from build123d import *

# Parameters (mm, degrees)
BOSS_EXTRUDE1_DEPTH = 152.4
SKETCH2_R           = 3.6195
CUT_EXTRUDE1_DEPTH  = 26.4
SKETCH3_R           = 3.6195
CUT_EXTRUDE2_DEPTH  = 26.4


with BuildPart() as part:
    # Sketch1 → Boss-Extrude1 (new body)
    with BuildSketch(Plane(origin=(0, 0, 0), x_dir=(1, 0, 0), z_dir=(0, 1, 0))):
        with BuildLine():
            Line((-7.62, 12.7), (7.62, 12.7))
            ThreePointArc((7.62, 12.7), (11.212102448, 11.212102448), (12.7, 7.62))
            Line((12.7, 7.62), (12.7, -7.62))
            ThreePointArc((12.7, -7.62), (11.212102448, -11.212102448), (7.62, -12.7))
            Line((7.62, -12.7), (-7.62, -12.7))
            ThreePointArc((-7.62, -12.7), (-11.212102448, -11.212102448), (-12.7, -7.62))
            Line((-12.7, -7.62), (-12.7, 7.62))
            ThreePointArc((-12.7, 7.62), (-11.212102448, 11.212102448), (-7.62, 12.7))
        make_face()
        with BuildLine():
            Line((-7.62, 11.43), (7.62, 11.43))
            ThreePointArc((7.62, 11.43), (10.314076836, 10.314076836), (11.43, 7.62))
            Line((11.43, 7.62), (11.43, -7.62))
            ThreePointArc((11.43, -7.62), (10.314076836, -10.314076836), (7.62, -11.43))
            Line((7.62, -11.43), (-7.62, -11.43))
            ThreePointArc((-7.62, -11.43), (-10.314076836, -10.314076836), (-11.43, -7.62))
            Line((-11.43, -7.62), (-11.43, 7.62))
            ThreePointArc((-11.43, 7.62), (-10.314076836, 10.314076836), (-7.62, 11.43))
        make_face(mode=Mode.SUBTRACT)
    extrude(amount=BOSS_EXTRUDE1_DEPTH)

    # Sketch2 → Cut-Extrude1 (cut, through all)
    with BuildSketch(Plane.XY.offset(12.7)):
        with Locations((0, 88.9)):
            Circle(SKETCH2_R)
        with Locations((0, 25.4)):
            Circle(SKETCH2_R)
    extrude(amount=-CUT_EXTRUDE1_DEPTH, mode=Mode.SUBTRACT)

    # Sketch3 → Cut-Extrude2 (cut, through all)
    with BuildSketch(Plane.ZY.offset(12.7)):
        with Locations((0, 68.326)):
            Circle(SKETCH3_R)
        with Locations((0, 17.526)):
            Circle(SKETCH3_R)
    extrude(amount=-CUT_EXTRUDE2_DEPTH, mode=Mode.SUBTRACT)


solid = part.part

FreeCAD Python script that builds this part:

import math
import FreeCAD as App
import Part
import Sketcher
Q = App.Units.Quantity

doc = App.newDocument("Part")
body = doc.addObject("PartDesign::Body", "Body")

sketch1 = doc.addObject("Sketcher::SketchObject", "Sketch")
body.addObject(sketch1)
sketch1.AttachmentSupport = (doc.XZ_Plane, [""])
sketch1.MapMode = "FlatFace"
sketch1.addGeometry([
    Part.LineSegment(App.Vector(7.6, -12.7, 0), App.Vector(-7.6, -12.7, 0)),
    Part.ArcOfCircle(Part.Circle(App.Vector(-7.6, -7.6, 0), App.Vector(0, 0, 1), 5.1), math.radians(-180), math.radians(-90)),
    Part.LineSegment(App.Vector(-12.7, -7.6, 0), App.Vector(-12.7, 7.6, 0)),
    Part.ArcOfCircle(Part.Circle(App.Vector(-7.6, 7.6, 0), App.Vector(0, 0, 1), 5.1), math.radians(90), math.radians(180)),
    Part.LineSegment(App.Vector(-7.6, 12.7, 0), App.Vector(7.6, 12.7, 0)),
    Part.ArcOfCircle(Part.Circle(App.Vector(7.6, 7.6, 0), App.Vector(0, 0, 1), 5.1), math.radians(0), math.radians(90)),
    Part.LineSegment(App.Vector(12.7, 7.6, 0), App.Vector(12.7, -7.6, 0)),
    Part.ArcOfCircle(Part.Circle(App.Vector(7.6, -7.6, 0), App.Vector(0, 0, 1), 5.1), math.radians(-90), math.radians(0)),
    Part.LineSegment(App.Vector(-7.6, -11.4, 0), App.Vector(7.6, -11.4, 0)),
    Part.ArcOfCircle(Part.Circle(App.Vector(7.6, -7.6, 0), App.Vector(0, 0, 1), 3.8), math.radians(-90), math.radians(0)),
    Part.LineSegment(App.Vector(11.4, -7.6, 0), App.Vector(11.4, 7.6, 0)),
    Part.ArcOfCircle(Part.Circle(App.Vector(7.6, 7.6, 0), App.Vector(0, 0, 1), 3.8), math.radians(0), math.radians(90)),
    Part.LineSegment(App.Vector(7.6, 11.4, 0), App.Vector(-7.6, 11.4, 0)),
    Part.ArcOfCircle(Part.Circle(App.Vector(-7.6, 7.6, 0), App.Vector(0, 0, 1), 3.8), math.radians(90), math.radians(180)),
    Part.LineSegment(App.Vector(-11.4, 7.6, 0), App.Vector(-11.4, -7.6, 0)),
    Part.ArcOfCircle(Part.Circle(App.Vector(-7.6, -7.6, 0), App.Vector(0, 0, 1), 3.8), math.radians(-180), math.radians(-90)),
], False)
sketch1.addConstraint([
    Sketcher.Constraint("Tangent", 0, 2, 1, 2),
    Sketcher.Constraint("Tangent", 1, 1, 2, 1),
    Sketcher.Constraint("Tangent", 2, 2, 3, 2),
    Sketcher.Constraint("Tangent", 3, 1, 4, 1),
    Sketcher.Constraint("Tangent", 4, 2, 5, 2),
    Sketcher.Constraint("Tangent", 5, 1, 6, 1),
    Sketcher.Constraint("Tangent", 6, 2, 7, 2),
    Sketcher.Constraint("Tangent", 7, 1, 0, 1),
    Sketcher.Constraint("Tangent", 8, 2, 9, 1),
    Sketcher.Constraint("Tangent", 9, 2, 10, 1),
    Sketcher.Constraint("Tangent", 10, 2, 11, 1),
    Sketcher.Constraint("Tangent", 11, 2, 12, 1),
    Sketcher.Constraint("Tangent", 12, 2, 13, 1),
    Sketcher.Constraint("Tangent", 13, 2, 14, 1),
    Sketcher.Constraint("Tangent", 14, 2, 15, 1),
    Sketcher.Constraint("Tangent", 15, 2, 8, 1),
    Sketcher.Constraint("Horizontal", 0),
    Sketcher.Constraint("Vertical", 2),
    Sketcher.Constraint("Horizontal", 4),
    Sketcher.Constraint("Vertical", 6),
    Sketcher.Constraint("Horizontal", 8),
    Sketcher.Constraint("Vertical", 10),
    Sketcher.Constraint("Horizontal", 12),
    Sketcher.Constraint("Vertical", 14),
    Sketcher.Constraint("Coincident", 9, 3, 7, 3),
    Sketcher.Constraint("Coincident", 11, 3, 5, 3),
    Sketcher.Constraint("Coincident", 13, 3, 3, 3),
    Sketcher.Constraint("Equal", 1, 3),
    Sketcher.Constraint("Equal", 3, 5),
    Sketcher.Constraint("Equal", 5, 7),
    Sketcher.Constraint("Equal", 13, 15),
    Sketcher.Constraint("Symmetric", 1, 3, 5, 3, -1, 1),
    Sketcher.Constraint("Equal", 12, 2),
    Sketcher.Constraint("Radius", 1, Q("0.2 in")),
    Sketcher.Constraint("Radius", 9, Q("0.15 in")),
    Sketcher.Constraint("DistanceX", 0, 2, 0, 1, Q("0.6 in")),
])
pad1 = doc.addObject("PartDesign::Pad", "Pad")
body.addObject(pad1)
pad1.Profile = sketch1
pad1.Length = Q("6 in")
pad1.Reversed = True

sketch2 = doc.addObject("Sketcher::SketchObject", "Sketch001")
body.addObject(sketch2)
sketch2.AttachmentSupport = (doc.XY_Plane, [""])
sketch2.MapMode = "FlatFace"
sketch2.AttachmentOffset = App.Placement(App.Vector(0, 0, 0.5 * 25.4), App.Rotation())
sketch2.addGeometry([
    Part.Circle(App.Vector(0, 88.9, 0), App.Vector(0, 0, 1), 3.6),
    Part.Circle(App.Vector(0, 25.4, 0), App.Vector(0, 0, 1), 3.6),
], False)
sketch2.addConstraint([
    Sketcher.Constraint("Equal", 0, 1),
    Sketcher.Constraint("PointOnObject", 0, 3, -2),
    Sketcher.Constraint("PointOnObject", 1, 3, -2),
    Sketcher.Constraint("Diameter", 0, Q("0.285 in")),
    Sketcher.Constraint("DistanceY", -1, 1, 1, 3, Q("1 in")),
    Sketcher.Constraint("DistanceY", -1, 1, 0, 3, Q("3.5 in")),
])
pocket1 = doc.addObject("PartDesign::Pocket", "Pocket")
body.addObject(pocket1)
pocket1.Profile = sketch2
pocket1.Type = "ThroughAll"

sketch3 = doc.addObject("Sketcher::SketchObject", "Sketch002")
body.addObject(sketch3)
sketch3.AttachmentSupport = (doc.YZ_Plane, [""])
sketch3.MapMode = "FlatFace"
sketch3.AttachmentOffset = App.Placement(App.Vector(0, 0, -0.5 * 25.4), App.Rotation())
sketch3.addGeometry([
    Part.Circle(App.Vector(68.3, 0, 0), App.Vector(0, 0, 1), 3.6),
    Part.Circle(App.Vector(17.5, 0, 0), App.Vector(0, 0, 1), 3.6),
], False)
sketch3.addConstraint([
    Sketcher.Constraint("Equal", 0, 1),
    Sketcher.Constraint("PointOnObject", 0, 3, -1),
    Sketcher.Constraint("PointOnObject", 1, 3, -1),
    Sketcher.Constraint("Diameter", 0, Q("0.285 in")),
    Sketcher.Constraint("DistanceX", 1, 3, 0, 3, Q("2 in")),
    Sketcher.Constraint("DistanceX", -1, 1, 0, 3, Q("2.69 in")),
])
pocket2 = doc.addObject("PartDesign::Pocket", "Pocket001")
body.addObject(pocket2)
pocket2.Profile = sketch3
pocket2.Type = "ThroughAll"
pocket2.Reversed = True

doc.recompute()
